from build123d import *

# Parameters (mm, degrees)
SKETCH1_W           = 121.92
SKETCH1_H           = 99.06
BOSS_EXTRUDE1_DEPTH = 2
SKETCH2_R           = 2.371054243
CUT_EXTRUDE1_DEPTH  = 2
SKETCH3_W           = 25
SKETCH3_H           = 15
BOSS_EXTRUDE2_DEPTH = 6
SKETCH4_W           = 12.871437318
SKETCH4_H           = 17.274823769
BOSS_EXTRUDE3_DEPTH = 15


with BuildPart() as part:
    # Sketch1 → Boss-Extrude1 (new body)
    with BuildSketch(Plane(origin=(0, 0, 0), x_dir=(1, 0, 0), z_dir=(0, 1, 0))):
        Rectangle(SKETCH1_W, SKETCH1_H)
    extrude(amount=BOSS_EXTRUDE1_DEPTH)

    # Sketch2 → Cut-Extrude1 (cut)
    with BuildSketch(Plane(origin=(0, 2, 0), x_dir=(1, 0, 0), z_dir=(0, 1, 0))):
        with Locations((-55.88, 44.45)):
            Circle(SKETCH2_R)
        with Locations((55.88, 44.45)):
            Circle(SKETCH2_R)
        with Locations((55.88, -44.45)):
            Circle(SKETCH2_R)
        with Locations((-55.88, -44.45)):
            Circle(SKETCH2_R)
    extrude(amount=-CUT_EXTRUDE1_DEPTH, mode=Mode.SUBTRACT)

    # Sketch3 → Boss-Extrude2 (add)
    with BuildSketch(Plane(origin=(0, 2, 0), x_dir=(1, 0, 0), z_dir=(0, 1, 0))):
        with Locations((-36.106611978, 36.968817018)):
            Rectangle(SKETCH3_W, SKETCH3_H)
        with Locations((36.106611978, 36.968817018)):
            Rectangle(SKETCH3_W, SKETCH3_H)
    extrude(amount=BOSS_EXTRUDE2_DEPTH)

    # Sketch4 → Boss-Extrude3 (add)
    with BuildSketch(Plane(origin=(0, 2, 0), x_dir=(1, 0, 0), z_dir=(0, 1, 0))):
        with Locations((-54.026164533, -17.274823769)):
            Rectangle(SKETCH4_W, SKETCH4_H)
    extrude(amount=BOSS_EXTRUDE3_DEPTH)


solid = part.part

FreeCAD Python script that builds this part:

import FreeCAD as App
import Part
import Sketcher
Q = App.Units.Quantity


def add_polygon(sketch, points):
    """Adds a closed chain of lines whose ends are joined by coincident constraints."""
    first, n = sketch.GeometryCount, len(points)
    for a, b in zip(points, points[1:] + points[:1]):
        sketch.addGeometry(Part.LineSegment(App.Vector(*a, 0), App.Vector(*b, 0)), False)
    for i in range(n):
        sketch.addConstraint(Sketcher.Constraint("Coincident", first + i, 2, first + (i + 1) % n, 1))

doc = App.newDocument("Part")
params = doc.addObject("Spreadsheet::Sheet", "Params")
for row, (alias, value) in enumerate([
    ("sketch1_width", "121.92 mm"),
    ("sketch1_height", "99.06 mm"),
    ("pad1_length", "2 mm"),
    ("pocket1_length", "2 mm"),
    ("sketch3_width", "25 mm"),
    ("sketch3_height", "15 mm"),
    ("pad2_length", "6 mm"),
    ("pad3_length", "15 mm"),
], start=1):
    params.set(f"A{row}", alias)
    params.set(f"B{row}", "=" + value)
    params.setAlias(f"B{row}", alias)

body = doc.addObject("PartDesign::Body", "Body")

sketch1 = body.newObject("Sketcher::SketchObject", "Sketch")
sketch1.AttachmentSupport = (doc.getObject("XZ_Plane"), [""])
sketch1.MapMode = "FlatFace"
add_polygon(sketch1, [(-61, -50), (-61, 50), (61, 50), (61, -50)])
sketch1.addConstraint([
    Sketcher.Constraint("Vertical", 0),
    Sketcher.Constraint("Horizontal", 1),
    Sketcher.Constraint("Vertical", 2),
    Sketcher.Constraint("Horizontal", 3),
    Sketcher.Constraint("Symmetric", 0, 2, 2, 2, -1, 1),
    Sketcher.Constraint("DistanceX", 1, 1, 1, 2, Q("121.92 mm")),
    Sketcher.Constraint("DistanceY", 0, 1, 0, 2, Q("99.06 mm")),
])
sketch1.setExpression("Constraints[9]", "Params.sketch1_width")
sketch1.setExpression("Constraints[10]", "Params.sketch1_height")
pad1 = body.newObject("PartDesign::Pad", "Pad")
pad1.Profile = sketch1
pad1.setExpression("Length", "Params.pad1_length")
pad1.Reversed = True

sketch2 = body.newObject("Sketcher::SketchObject", "Sketch001")
sketch2.AttachmentSupport = (doc.getObject("XZ_Plane"), [""])
sketch2.MapMode = "FlatFace"
sketch2.AttachmentOffset = App.Placement(App.Vector(0, 0, -2), App.Rotation())
sketch2.addGeometry([
    Part.Circle(App.Vector(-55.9, -44.5, 0), App.Vector(0, 0, 1), 2.4),
    Part.Circle(App.Vector(55.9, -44.5, 0), App.Vector(0, 0, 1), 2.4),
    Part.Circle(App.Vector(55.9, 44.5, 0), App.Vector(0, 0, 1), 2.4),
    Part.Circle(App.Vector(-55.9, 44.5, 0), App.Vector(0, 0, 1), 2.4),
], False)
sketch2.addConstraint([
    Sketcher.Constraint("Equal", 0, 1),
    Sketcher.Constraint("Equal", 1, 2),
    Sketcher.Constraint("Equal", 2, 3),
    Sketcher.Constraint("Symmetric", 0, 3, 2, 3, -1, 1),
    Sketcher.Constraint("Symmetric", 1, 3, 3, 3, -1, 1),
    Sketcher.Constraint("Symmetric", 0, 3, 1, 3, -2),
    Sketcher.Constraint("DistanceY", 1, 3, 2, 3, Q("88.9 mm")),
    Sketcher.Constraint("Diameter", 0, Q("4.742108 mm")),
    Sketcher.Constraint("DistanceX", 0, 3, -1, 1, Q("55.88 mm")),
])
pocket1 = body.newObject("PartDesign::Pocket", "Pocket")
pocket1.Profile = sketch2
pocket1.setExpression("Length", "Params.pocket1_length")
pocket1.Reversed = True

sketch3 = body.newObject("Sketcher::SketchObject", "Sketch002")
sketch3.AttachmentSupport = (doc.getObject("XZ_Plane"), [""])
sketch3.MapMode = "FlatFace"
sketch3.AttachmentOffset = App.Placement(App.Vector(0, 0, -2), App.Rotation())
add_polygon(sketch3, [(-49, -44), (-49, -29), (-24, -29), (-24, -44)])
add_polygon(sketch3, [(24, -44), (24, -29), (49, -29), (49, -44)])
sketch3.addConstraint([
    Sketcher.Constraint("Vertical", 0),
    Sketcher.Constraint("Horizontal", 1),
    Sketcher.Constraint("Vertical", 2),
    Sketcher.Constraint("Horizontal", 3),
    Sketcher.Constraint("Vertical", 4),
    Sketcher.Constraint("Horizontal", 5),
    Sketcher.Constraint("Vertical", 6),
    Sketcher.Constraint("Horizontal", 7),
    Sketcher.Constraint("Symmetric", 1, 2, 4, 2, -2),
    Sketcher.Constraint("Symmetric", 3, 2, 6, 2, -2),
    Sketcher.Constraint("DistanceX", 1, 1, 1, 2, Q("25 mm")),
    Sketcher.Constraint("DistanceY", 0, 1, 0, 2, Q("15 mm")),
    Sketcher.Constraint("DistanceX", 0, 2, -1, 1, Q("48.606612 mm")),
    Sketcher.Constraint("DistanceY", 0, 2, -1, 1, Q("29.468817 mm")),
])
sketch3.setExpression("Constraints[18]", "Params.sketch3_width")
sketch3.setExpression("Constraints[19]", "Params.sketch3_height")
pad2 = body.newObject("PartDesign::Pad", "Pad001")
pad2.Profile = sketch3
pad2.setExpression("Length", "Params.pad2_length")
pad2.Reversed = True

sketch4 = body.newObject("Sketcher::SketchObject", "Sketch003")
sketch4.AttachmentSupport = (doc.getObject("XZ_Plane"), [""])
sketch4.MapMode = "FlatFace"
sketch4.AttachmentOffset = App.Placement(App.Vector(0, 0, -2), App.Rotation())
add_polygon(sketch4, [(-60, 9), (-60, 26), (-48, 26), (-48, 9)])
sketch4.addConstraint([
    Sketcher.Constraint("Vertical", 0),
    Sketcher.Constraint("Horizontal", 1),
    Sketcher.Constraint("Vertical", 2),
    Sketcher.Constraint("Horizontal", 3),
    Sketcher.Constraint("DistanceX", 1, 1, 1, 2, Q("12.871437 mm")),
    Sketcher.Constraint("DistanceY", 0, 1, 0, 2, Q("17.274824 mm")),
    Sketcher.Constraint("DistanceY", -1, 1, 2, 2, Q("8.637412 mm")),
    Sketcher.Constraint("DistanceX", 0, 2, -1, 1, Q("60.461883 mm")),
])
pad3 = body.newObject("PartDesign::Pad", "Pad002")
pad3.Profile = sketch4
pad3.setExpression("Length", "Params.pad3_length")
pad3.Reversed = True

doc.recompute()
